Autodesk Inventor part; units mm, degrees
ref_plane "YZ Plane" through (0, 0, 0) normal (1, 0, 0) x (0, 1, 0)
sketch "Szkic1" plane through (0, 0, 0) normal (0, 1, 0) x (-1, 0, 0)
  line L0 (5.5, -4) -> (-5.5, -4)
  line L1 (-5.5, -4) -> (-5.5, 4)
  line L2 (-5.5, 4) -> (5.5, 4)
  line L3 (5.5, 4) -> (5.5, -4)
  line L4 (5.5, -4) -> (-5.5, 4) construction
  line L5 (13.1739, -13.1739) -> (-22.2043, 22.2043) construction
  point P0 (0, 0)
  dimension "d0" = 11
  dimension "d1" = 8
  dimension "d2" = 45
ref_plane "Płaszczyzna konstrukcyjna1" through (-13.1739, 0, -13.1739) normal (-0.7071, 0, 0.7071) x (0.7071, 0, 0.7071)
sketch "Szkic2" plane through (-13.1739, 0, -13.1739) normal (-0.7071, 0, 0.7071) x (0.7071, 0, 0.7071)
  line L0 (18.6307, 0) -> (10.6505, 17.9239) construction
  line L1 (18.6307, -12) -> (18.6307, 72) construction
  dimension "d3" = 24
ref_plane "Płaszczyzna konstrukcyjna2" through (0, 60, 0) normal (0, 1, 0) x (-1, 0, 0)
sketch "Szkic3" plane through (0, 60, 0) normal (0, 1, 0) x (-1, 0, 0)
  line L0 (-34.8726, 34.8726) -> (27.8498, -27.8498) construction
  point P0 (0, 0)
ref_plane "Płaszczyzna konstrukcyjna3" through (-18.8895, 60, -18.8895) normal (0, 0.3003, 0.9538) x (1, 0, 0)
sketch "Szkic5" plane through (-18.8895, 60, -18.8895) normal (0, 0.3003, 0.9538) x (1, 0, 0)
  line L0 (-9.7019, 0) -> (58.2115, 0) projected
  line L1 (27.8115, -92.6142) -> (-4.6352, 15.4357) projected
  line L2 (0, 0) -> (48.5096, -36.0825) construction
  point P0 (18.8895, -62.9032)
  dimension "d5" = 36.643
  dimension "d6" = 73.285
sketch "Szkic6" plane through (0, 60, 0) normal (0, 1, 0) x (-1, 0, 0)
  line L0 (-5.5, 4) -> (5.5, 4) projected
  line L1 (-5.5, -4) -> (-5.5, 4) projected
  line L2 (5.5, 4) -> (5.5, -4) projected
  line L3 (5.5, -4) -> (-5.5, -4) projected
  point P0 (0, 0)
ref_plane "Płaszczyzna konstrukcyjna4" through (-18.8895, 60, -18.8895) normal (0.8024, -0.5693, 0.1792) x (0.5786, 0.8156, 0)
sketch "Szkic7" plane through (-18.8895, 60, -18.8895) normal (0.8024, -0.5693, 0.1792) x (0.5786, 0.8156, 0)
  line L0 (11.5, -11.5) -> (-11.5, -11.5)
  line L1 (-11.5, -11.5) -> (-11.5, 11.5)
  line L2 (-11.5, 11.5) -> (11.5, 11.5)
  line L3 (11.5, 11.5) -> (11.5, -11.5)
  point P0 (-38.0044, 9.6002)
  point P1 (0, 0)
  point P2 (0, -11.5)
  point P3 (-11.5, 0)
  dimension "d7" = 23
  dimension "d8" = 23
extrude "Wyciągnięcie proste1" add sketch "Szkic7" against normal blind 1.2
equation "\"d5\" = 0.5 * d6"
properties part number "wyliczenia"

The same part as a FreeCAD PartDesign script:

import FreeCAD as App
import Part
import Sketcher

doc = App.newDocument("Part")
body = doc.addObject("PartDesign::Body", "Body")

# Sketch on an angled plane
sketch1 = body.newObject("Sketcher::SketchObject", "Sketch")
sketch1.Placement = App.Placement(App.Vector(-18.8895, 60, -18.8895), App.Rotation(App.Vector(0.578647481, 0.815577766, 0.000009397), App.Vector(-0.146152436, 0.103682932, 0.983813658), App.Vector(0.802375572, -0.569282668, 0.179194545), "ZXY"))
sketch1.addGeometry([
    Part.LineSegment(App.Vector(-11, -11, 0), App.Vector(11, -11, 0)),
    Part.LineSegment(App.Vector(11, -11, 0), App.Vector(11, 11, 0)),
    Part.LineSegment(App.Vector(11, 11, 0), App.Vector(-11, 11, 0)),
    Part.LineSegment(App.Vector(-11, 11, 0), App.Vector(-11, -11, 0)),
], False)
sketch1.addConstraint([
    Sketcher.Constraint("Coincident", 0, 2, 1, 1),
    Sketcher.Constraint("Coincident", 1, 2, 2, 1),
    Sketcher.Constraint("Coincident", 2, 2, 3, 1),
    Sketcher.Constraint("Coincident", 3, 2, 0, 1),
    Sketcher.Constraint("Horizontal", 0),
    Sketcher.Constraint("Vertical", 1),
    Sketcher.Constraint("Horizontal", 2),
    Sketcher.Constraint("Vertical", 3),
    Sketcher.Constraint("Symmetric", 0, 2, 2, 2, -1, 1),
    Sketcher.Constraint("Equal", 2, 1),
    Sketcher.Constraint("DistanceX", 0, 1, 0, 2, 23.0),
])
pad1 = body.newObject("PartDesign::Pad", "Pad")
pad1.Profile = sketch1
pad1.Length = 1.2
pad1.Reversed = True

doc.recompute()
